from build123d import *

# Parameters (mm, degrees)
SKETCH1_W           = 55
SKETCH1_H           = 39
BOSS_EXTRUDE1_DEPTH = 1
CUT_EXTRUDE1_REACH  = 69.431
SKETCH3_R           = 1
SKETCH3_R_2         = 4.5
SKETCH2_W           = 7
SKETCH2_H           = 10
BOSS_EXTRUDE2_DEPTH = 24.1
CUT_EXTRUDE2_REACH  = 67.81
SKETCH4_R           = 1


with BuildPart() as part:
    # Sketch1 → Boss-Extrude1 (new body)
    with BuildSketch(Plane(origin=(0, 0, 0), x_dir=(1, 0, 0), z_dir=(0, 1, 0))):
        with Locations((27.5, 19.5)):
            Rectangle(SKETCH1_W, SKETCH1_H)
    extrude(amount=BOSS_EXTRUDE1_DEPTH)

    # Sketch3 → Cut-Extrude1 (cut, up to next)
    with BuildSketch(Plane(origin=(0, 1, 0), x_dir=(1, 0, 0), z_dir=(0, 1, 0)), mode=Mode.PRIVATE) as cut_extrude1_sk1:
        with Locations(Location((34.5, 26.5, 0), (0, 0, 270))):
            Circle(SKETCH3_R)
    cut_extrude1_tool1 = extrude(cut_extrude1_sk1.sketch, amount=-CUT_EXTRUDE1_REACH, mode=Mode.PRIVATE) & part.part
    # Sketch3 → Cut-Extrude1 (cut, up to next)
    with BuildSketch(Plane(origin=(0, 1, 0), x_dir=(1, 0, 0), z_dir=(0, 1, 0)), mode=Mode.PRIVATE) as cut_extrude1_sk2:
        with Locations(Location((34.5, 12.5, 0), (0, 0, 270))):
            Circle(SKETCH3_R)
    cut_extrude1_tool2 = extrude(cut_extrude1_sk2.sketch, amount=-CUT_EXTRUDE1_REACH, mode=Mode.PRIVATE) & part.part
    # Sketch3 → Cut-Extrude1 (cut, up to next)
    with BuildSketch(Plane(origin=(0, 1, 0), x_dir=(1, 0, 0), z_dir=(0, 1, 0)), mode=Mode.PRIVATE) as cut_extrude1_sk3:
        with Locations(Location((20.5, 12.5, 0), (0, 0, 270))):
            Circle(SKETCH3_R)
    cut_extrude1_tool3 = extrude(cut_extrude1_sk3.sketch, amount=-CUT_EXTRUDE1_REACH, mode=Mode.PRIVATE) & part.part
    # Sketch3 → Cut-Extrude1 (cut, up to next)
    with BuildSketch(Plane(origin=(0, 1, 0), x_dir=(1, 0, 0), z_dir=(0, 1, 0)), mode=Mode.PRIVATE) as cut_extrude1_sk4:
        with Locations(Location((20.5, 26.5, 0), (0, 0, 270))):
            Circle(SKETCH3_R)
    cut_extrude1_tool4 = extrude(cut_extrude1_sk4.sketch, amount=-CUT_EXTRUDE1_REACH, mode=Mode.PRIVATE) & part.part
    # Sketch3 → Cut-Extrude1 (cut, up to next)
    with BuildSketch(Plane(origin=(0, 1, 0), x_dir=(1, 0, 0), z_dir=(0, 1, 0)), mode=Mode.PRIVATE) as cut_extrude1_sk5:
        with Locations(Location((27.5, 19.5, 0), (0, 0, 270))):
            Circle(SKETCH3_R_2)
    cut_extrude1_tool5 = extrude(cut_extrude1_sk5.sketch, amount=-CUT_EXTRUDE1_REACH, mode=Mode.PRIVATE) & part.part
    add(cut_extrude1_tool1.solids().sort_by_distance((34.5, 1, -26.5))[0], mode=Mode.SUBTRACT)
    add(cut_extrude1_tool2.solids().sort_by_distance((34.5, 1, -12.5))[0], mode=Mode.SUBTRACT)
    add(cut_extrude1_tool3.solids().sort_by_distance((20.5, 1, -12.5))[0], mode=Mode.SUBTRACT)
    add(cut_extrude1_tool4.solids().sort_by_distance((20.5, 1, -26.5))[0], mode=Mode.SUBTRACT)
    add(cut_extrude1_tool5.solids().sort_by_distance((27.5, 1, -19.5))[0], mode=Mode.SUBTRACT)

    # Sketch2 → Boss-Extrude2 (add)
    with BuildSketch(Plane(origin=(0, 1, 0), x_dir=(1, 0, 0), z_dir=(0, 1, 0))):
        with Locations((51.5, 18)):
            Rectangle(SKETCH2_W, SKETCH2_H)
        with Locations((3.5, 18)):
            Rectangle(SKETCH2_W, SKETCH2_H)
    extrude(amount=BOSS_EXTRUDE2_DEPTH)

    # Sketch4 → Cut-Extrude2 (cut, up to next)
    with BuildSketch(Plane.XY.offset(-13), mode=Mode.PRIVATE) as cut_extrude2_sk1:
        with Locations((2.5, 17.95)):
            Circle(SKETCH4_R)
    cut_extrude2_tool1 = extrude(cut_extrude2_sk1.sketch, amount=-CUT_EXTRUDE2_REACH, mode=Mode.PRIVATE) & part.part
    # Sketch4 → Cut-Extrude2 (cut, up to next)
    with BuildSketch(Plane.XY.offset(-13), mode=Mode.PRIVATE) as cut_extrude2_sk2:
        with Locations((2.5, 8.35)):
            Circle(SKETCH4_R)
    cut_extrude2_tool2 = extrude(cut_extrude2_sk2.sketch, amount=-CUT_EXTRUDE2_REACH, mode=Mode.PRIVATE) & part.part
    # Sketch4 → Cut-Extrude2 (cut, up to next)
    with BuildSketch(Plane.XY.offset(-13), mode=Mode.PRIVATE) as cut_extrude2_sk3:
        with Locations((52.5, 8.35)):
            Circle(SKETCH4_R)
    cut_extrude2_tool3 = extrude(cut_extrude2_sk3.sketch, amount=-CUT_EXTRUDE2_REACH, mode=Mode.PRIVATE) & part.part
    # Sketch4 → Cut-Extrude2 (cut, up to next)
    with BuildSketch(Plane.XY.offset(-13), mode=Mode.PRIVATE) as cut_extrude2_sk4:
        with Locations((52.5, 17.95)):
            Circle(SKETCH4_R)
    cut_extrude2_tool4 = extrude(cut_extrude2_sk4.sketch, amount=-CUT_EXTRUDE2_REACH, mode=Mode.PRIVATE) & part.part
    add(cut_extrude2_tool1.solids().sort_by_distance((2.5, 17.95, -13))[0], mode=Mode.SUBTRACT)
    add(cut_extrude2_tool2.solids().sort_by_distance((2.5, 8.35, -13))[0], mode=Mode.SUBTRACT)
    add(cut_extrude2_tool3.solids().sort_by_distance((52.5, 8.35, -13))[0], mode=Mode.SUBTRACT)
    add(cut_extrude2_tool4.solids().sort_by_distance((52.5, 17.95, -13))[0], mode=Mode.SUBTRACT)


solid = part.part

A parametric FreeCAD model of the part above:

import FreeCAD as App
import Part
import Sketcher
from FreeCAD import Vector
Q = App.Units.Quantity

doc = App.newDocument("Part")
body = doc.addObject("PartDesign::Body", "Body")

# Sketch on XZ plane
sketch1 = body.newObject("Sketcher::SketchObject", "Sketch")
sketch1.AttachmentSupport = (doc.getObject("XZ_Plane"), [""])
sketch1.MapMode = "FlatFace"
sketch1.addGeometry(Part.LineSegment(Vector(0, -39, 0), Vector(0, 0, 0)), False)
sketch1.addGeometry(Part.LineSegment(Vector(0, 0, 0), Vector(55, 0, 0)), False)
sketch1.addGeometry(Part.LineSegment(Vector(55, 0, 0), Vector(55, -39, 0)), False)
sketch1.addGeometry(Part.LineSegment(Vector(55, -39, 0), Vector(0, -39, 0)), False)
sketch1.addConstraint(Sketcher.Constraint("Coincident", 0, 2, 1, 1))
sketch1.addConstraint(Sketcher.Constraint("Coincident", 1, 2, 2, 1))
sketch1.addConstraint(Sketcher.Constraint("Coincident", 2, 2, 3, 1))
sketch1.addConstraint(Sketcher.Constraint("Coincident", 3, 2, 0, 1))
sketch1.addConstraint(Sketcher.Constraint("Vertical", 0))
sketch1.addConstraint(Sketcher.Constraint("Horizontal", 1))
sketch1.addConstraint(Sketcher.Constraint("Vertical", 2))
sketch1.addConstraint(Sketcher.Constraint("Horizontal", 3))
sketch1.addConstraint(Sketcher.Constraint("Coincident", 0, 2, -1, 1))
sketch1.addConstraint(Sketcher.Constraint("DistanceX", 1, 1, 1, 2, Q("55 mm")))
sketch1.addConstraint(Sketcher.Constraint("DistanceY", 0, 1, 0, 2, Q("39 mm")))
pad1 = body.newObject("PartDesign::Pad", "Pad")
pad1.Profile = sketch1
pad1.Length = 1
pad1.Reversed = True

# Sketch on XZ plane
sketch2 = body.newObject("Sketcher::SketchObject", "Sketch001")
sketch2.AttachmentSupport = (doc.getObject("XZ_Plane"), [""])
sketch2.MapMode = "FlatFace"
sketch2.AttachmentOffset = App.Placement(Vector(0, 0, -1), App.Rotation())
sketch2.addGeometry(Part.Circle(Vector(34.5, -26.5, 0), Vector(0, 0, 1), 1), False)
sketch2.addConstraint(Sketcher.Constraint("Diameter", 0, Q("2 mm")))
sketch2.addConstraint(Sketcher.Constraint("DistanceX", -1, 1, 0, 3, Q("34.5 mm")))
sketch2.addConstraint(Sketcher.Constraint("DistanceY", 0, 3, -1, 1, Q("26.5 mm")))
pocket1 = body.newObject("PartDesign::Pocket", "Pocket")
pocket1.Profile = sketch2
pocket1.Type = "UpToFirst"
pocket1.Reversed = True

# Sketch on XZ plane
sketch3 = body.newObject("Sketcher::SketchObject", "Sketch002")
sketch3.AttachmentSupport = (doc.getObject("XZ_Plane"), [""])
sketch3.MapMode = "FlatFace"
sketch3.AttachmentOffset = App.Placement(Vector(0, 0, -1), App.Rotation())
sketch3.addGeometry(Part.Circle(Vector(34.5, -12.5, 0), Vector(0, 0, 1), 1), False)
sketch3.addConstraint(Sketcher.Constraint("Diameter", 0, Q("2 mm")))
sketch3.addConstraint(Sketcher.Constraint("DistanceX", -1, 1, 0, 3, Q("34.5 mm")))
sketch3.addConstraint(Sketcher.Constraint("DistanceY", 0, 3, -1, 1, Q("12.5 mm")))
pocket2 = body.newObject("PartDesign::Pocket", "Pocket001")
pocket2.Profile = sketch3
pocket2.Type = "UpToFirst"
pocket2.Reversed = True

# Sketch on XZ plane
sketch4 = body.newObject("Sketcher::SketchObject", "Sketch003")
sketch4.AttachmentSupport = (doc.getObject("XZ_Plane"), [""])
sketch4.MapMode = "FlatFace"
sketch4.AttachmentOffset = App.Placement(Vector(0, 0, -1), App.Rotation())
sketch4.addGeometry(Part.Circle(Vector(20.5, -12.5, 0), Vector(0, 0, 1), 1), False)
sketch4.addConstraint(Sketcher.Constraint("Diameter", 0, Q("2 mm")))
sketch4.addConstraint(Sketcher.Constraint("DistanceX", -1, 1, 0, 3, Q("20.5 mm")))
sketch4.addConstraint(Sketcher.Constraint("DistanceY", 0, 3, -1, 1, Q("12.5 mm")))
pocket3 = body.newObject("PartDesign::Pocket", "Pocket002")
pocket3.Profile = sketch4
pocket3.Type = "UpToFirst"
pocket3.Reversed = True

# Sketch on XZ plane
sketch5 = body.newObject("Sketcher::SketchObject", "Sketch004")
sketch5.AttachmentSupport = (doc.getObject("XZ_Plane"), [""])
sketch5.MapMode = "FlatFace"
sketch5.AttachmentOffset = App.Placement(Vector(0, 0, -1), App.Rotation())
sketch5.addGeometry(Part.Circle(Vector(20.5, -26.5, 0), Vector(0, 0, 1), 1), False)
sketch5.addConstraint(Sketcher.Constraint("Diameter", 0, Q("2 mm")))
sketch5.addConstraint(Sketcher.Constraint("DistanceX", -1, 1, 0, 3, Q("20.5 mm")))
sketch5.addConstraint(Sketcher.Constraint("DistanceY", 0, 3, -1, 1, Q("26.5 mm")))
pocket4 = body.newObject("PartDesign::Pocket", "Pocket003")
pocket4.Profile = sketch5
pocket4.Type = "UpToFirst"
pocket4.Reversed = True

# Sketch on XZ plane
sketch6 = body.newObject("Sketcher::SketchObject", "Sketch005")
sketch6.AttachmentSupport = (doc.getObject("XZ_Plane"), [""])
sketch6.MapMode = "FlatFace"
sketch6.AttachmentOffset = App.Placement(Vector(0, 0, -1), App.Rotation())
sketch6.addGeometry(Part.Circle(Vector(27.5, -19.5, 0), Vector(0, 0, 1), 4.5), False)
sketch6.addConstraint(Sketcher.Constraint("Diameter", 0, Q("9 mm")))
sketch6.addConstraint(Sketcher.Constraint("DistanceX", -1, 1, 0, 3, Q("27.5 mm")))
sketch6.addConstraint(Sketcher.Constraint("DistanceY", 0, 3, -1, 1, Q("19.5 mm")))
pocket5 = body.newObject("PartDesign::Pocket", "Pocket004")
pocket5.Profile = sketch6
pocket5.Type = "UpToFirst"
pocket5.Reversed = True

# Sketch on XZ plane
sketch7 = body.newObject("Sketcher::SketchObject", "Sketch006")
sketch7.AttachmentSupport = (doc.getObject("XZ_Plane"), [""])
sketch7.MapMode = "FlatFace"
sketch7.AttachmentOffset = App.Placement(Vector(0, 0, -1), App.Rotation())
sketch7.addGeometry(Part.LineSegment(Vector(48, -23, 0), Vector(48, -13, 0)), False)
sketch7.addGeometry(Part.LineSegment(Vector(48, -13, 0), Vector(55, -13, 0)), False)
sketch7.addGeometry(Part.LineSegment(Vector(55, -13, 0), Vector(55, -23, 0)), False)
sketch7.addGeometry(Part.LineSegment(Vector(55, -23, 0), Vector(48, -23, 0)), False)
sketch7.addGeometry(Part.LineSegment(Vector(0, -23, 0), Vector(0, -13, 0)), False)
sketch7.addGeometry(Part.LineSegment(Vector(0, -13, 0), Vector(7, -13, 0)), False)
sketch7.addGeometry(Part.LineSegment(Vector(7, -13, 0), Vector(7, -23, 0)), False)
sketch7.addGeometry(Part.LineSegment(Vector(7, -23, 0), Vector(0, -23, 0)), False)
sketch7.addConstraint(Sketcher.Constraint("Coincident", 0, 2, 1, 1))
sketch7.addConstraint(Sketcher.Constraint("Coincident", 1, 2, 2, 1))
sketch7.addConstraint(Sketcher.Constraint("Coincident", 2, 2, 3, 1))
sketch7.addConstraint(Sketcher.Constraint("Coincident", 3, 2, 0, 1))
sketch7.addConstraint(Sketcher.Constraint("Coincident", 4, 2, 5, 1))
sketch7.addConstraint(Sketcher.Constraint("Coincident", 5, 2, 6, 1))
sketch7.addConstraint(Sketcher.Constraint("Coincident", 6, 2, 7, 1))
sketch7.addConstraint(Sketcher.Constraint("Coincident", 7, 2, 4, 1))
sketch7.addConstraint(Sketcher.Constraint("Vertical", 0))
sketch7.addConstraint(Sketcher.Constraint("Horizontal", 1))
sketch7.addConstraint(Sketcher.Constraint("Vertical", 2))
sketch7.addConstraint(Sketcher.Constraint("Horizontal", 3))
sketch7.addConstraint(Sketcher.Constraint("Vertical", 4))
sketch7.addConstraint(Sketcher.Constraint("Horizontal", 5))
sketch7.addConstraint(Sketcher.Constraint("Vertical", 6))
sketch7.addConstraint(Sketcher.Constraint("Horizontal", 7))
sketch7.addConstraint(Sketcher.Constraint("PointOnObject", 4, 2, -2))
sketch7.addConstraint(Sketcher.Constraint("Horizontal", 1, 2, 4, 2))
sketch7.addConstraint(Sketcher.Constraint("Horizontal", 3, 2, 6, 2))
sketch7.addConstraint(Sketcher.Constraint("Equal", 3, 5))
sketch7.addConstraint(Sketcher.Constraint("DistanceX", 1, 1, 1, 2, Q("7 mm")))
sketch7.addConstraint(Sketcher.Constraint("DistanceY", 0, 1, 0, 2, Q("10 mm")))
sketch7.addConstraint(Sketcher.Constraint("DistanceX", -1, 1, 0, 2, Q("48 mm")))
sketch7.addConstraint(Sketcher.Constraint("DistanceY", 0, 2, -1, 1, Q("13 mm")))
pad2 = body.newObject("PartDesign::Pad", "Pad001")
pad2.Profile = sketch7
pad2.Length = 24.1
pad2.Reversed = True

# Sketch on XY plane
sketch8 = body.newObject("Sketcher::SketchObject", "Sketch007")
sketch8.AttachmentSupport = (doc.getObject("XY_Plane"), [""])
sketch8.MapMode = "FlatFace"
sketch8.AttachmentOffset = App.Placement(Vector(0, 0, -13), App.Rotation())
sketch8.addGeometry(Part.Circle(Vector(2.5, 17.9, 0), Vector(0, 0, 1), 1), False)
sketch8.addConstraint(Sketcher.Constraint("Diameter", 0, Q("2 mm")))
sketch8.addConstraint(Sketcher.Constraint("DistanceX", -1, 1, 0, 3, Q("2.5 mm")))
sketch8.addConstraint(Sketcher.Constraint("DistanceY", -1, 1, 0, 3, Q("17.95 mm")))
pocket6 = body.newObject("PartDesign::Pocket", "Pocket005")
pocket6.Profile = sketch8
pocket6.Type = "UpToFirst"

# Sketch on XY plane
sketch9 = body.newObject("Sketcher::SketchObject", "Sketch008")
sketch9.AttachmentSupport = (doc.getObject("XY_Plane"), [""])
sketch9.MapMode = "FlatFace"
sketch9.AttachmentOffset = App.Placement(Vector(0, 0, -13), App.Rotation())
sketch9.addGeometry(Part.Circle(Vector(2.5, 8.3, 0), Vector(0, 0, 1), 1), False)
sketch9.addConstraint(Sketcher.Constraint("Diameter", 0, Q("2 mm")))
sketch9.addConstraint(Sketcher.Constraint("DistanceX", -1, 1, 0, 3, Q("2.5 mm")))
sketch9.addConstraint(Sketcher.Constraint("DistanceY", -1, 1, 0, 3, Q("8.35 mm")))
pocket7 = body.newObject("PartDesign::Pocket", "Pocket006")
pocket7.Profile = sketch9
pocket7.Type = "UpToFirst"

# Sketch on XY plane
sketch10 = body.newObject("Sketcher::SketchObject", "Sketch009")
sketch10.AttachmentSupport = (doc.getObject("XY_Plane"), [""])
sketch10.MapMode = "FlatFace"
sketch10.AttachmentOffset = App.Placement(Vector(0, 0, -13), App.Rotation())
sketch10.addGeometry(Part.Circle(Vector(52.5, 8.3, 0), Vector(0, 0, 1), 1), False)
sketch10.addConstraint(Sketcher.Constraint("Diameter", 0, Q("2 mm")))
sketch10.addConstraint(Sketcher.Constraint("DistanceX", -1, 1, 0, 3, Q("52.5 mm")))
sketch10.addConstraint(Sketcher.Constraint("DistanceY", -1, 1, 0, 3, Q("8.35 mm")))
pocket8 = body.newObject("PartDesign::Pocket", "Pocket007")
pocket8.Profile = sketch10
pocket8.Type = "UpToFirst"

# Sketch on XY plane
sketch11 = body.newObject("Sketcher::SketchObject", "Sketch010")
sketch11.AttachmentSupport = (doc.getObject("XY_Plane"), [""])
sketch11.MapMode = "FlatFace"
sketch11.AttachmentOffset = App.Placement(Vector(0, 0, -13), App.Rotation())
sketch11.addGeometry(Part.Circle(Vector(52.5, 17.9, 0), Vector(0, 0, 1), 1), False)
sketch11.addConstraint(Sketcher.Constraint("Diameter", 0, Q("2 mm")))
sketch11.addConstraint(Sketcher.Constraint("DistanceX", -1, 1, 0, 3, Q("52.5 mm")))
sketch11.addConstraint(Sketcher.Constraint("DistanceY", -1, 1, 0, 3, Q("17.95 mm")))
pocket9 = body.newObject("PartDesign::Pocket", "Pocket008")
pocket9.Profile = sketch11
pocket9.Type = "UpToFirst"

doc.recompute()
